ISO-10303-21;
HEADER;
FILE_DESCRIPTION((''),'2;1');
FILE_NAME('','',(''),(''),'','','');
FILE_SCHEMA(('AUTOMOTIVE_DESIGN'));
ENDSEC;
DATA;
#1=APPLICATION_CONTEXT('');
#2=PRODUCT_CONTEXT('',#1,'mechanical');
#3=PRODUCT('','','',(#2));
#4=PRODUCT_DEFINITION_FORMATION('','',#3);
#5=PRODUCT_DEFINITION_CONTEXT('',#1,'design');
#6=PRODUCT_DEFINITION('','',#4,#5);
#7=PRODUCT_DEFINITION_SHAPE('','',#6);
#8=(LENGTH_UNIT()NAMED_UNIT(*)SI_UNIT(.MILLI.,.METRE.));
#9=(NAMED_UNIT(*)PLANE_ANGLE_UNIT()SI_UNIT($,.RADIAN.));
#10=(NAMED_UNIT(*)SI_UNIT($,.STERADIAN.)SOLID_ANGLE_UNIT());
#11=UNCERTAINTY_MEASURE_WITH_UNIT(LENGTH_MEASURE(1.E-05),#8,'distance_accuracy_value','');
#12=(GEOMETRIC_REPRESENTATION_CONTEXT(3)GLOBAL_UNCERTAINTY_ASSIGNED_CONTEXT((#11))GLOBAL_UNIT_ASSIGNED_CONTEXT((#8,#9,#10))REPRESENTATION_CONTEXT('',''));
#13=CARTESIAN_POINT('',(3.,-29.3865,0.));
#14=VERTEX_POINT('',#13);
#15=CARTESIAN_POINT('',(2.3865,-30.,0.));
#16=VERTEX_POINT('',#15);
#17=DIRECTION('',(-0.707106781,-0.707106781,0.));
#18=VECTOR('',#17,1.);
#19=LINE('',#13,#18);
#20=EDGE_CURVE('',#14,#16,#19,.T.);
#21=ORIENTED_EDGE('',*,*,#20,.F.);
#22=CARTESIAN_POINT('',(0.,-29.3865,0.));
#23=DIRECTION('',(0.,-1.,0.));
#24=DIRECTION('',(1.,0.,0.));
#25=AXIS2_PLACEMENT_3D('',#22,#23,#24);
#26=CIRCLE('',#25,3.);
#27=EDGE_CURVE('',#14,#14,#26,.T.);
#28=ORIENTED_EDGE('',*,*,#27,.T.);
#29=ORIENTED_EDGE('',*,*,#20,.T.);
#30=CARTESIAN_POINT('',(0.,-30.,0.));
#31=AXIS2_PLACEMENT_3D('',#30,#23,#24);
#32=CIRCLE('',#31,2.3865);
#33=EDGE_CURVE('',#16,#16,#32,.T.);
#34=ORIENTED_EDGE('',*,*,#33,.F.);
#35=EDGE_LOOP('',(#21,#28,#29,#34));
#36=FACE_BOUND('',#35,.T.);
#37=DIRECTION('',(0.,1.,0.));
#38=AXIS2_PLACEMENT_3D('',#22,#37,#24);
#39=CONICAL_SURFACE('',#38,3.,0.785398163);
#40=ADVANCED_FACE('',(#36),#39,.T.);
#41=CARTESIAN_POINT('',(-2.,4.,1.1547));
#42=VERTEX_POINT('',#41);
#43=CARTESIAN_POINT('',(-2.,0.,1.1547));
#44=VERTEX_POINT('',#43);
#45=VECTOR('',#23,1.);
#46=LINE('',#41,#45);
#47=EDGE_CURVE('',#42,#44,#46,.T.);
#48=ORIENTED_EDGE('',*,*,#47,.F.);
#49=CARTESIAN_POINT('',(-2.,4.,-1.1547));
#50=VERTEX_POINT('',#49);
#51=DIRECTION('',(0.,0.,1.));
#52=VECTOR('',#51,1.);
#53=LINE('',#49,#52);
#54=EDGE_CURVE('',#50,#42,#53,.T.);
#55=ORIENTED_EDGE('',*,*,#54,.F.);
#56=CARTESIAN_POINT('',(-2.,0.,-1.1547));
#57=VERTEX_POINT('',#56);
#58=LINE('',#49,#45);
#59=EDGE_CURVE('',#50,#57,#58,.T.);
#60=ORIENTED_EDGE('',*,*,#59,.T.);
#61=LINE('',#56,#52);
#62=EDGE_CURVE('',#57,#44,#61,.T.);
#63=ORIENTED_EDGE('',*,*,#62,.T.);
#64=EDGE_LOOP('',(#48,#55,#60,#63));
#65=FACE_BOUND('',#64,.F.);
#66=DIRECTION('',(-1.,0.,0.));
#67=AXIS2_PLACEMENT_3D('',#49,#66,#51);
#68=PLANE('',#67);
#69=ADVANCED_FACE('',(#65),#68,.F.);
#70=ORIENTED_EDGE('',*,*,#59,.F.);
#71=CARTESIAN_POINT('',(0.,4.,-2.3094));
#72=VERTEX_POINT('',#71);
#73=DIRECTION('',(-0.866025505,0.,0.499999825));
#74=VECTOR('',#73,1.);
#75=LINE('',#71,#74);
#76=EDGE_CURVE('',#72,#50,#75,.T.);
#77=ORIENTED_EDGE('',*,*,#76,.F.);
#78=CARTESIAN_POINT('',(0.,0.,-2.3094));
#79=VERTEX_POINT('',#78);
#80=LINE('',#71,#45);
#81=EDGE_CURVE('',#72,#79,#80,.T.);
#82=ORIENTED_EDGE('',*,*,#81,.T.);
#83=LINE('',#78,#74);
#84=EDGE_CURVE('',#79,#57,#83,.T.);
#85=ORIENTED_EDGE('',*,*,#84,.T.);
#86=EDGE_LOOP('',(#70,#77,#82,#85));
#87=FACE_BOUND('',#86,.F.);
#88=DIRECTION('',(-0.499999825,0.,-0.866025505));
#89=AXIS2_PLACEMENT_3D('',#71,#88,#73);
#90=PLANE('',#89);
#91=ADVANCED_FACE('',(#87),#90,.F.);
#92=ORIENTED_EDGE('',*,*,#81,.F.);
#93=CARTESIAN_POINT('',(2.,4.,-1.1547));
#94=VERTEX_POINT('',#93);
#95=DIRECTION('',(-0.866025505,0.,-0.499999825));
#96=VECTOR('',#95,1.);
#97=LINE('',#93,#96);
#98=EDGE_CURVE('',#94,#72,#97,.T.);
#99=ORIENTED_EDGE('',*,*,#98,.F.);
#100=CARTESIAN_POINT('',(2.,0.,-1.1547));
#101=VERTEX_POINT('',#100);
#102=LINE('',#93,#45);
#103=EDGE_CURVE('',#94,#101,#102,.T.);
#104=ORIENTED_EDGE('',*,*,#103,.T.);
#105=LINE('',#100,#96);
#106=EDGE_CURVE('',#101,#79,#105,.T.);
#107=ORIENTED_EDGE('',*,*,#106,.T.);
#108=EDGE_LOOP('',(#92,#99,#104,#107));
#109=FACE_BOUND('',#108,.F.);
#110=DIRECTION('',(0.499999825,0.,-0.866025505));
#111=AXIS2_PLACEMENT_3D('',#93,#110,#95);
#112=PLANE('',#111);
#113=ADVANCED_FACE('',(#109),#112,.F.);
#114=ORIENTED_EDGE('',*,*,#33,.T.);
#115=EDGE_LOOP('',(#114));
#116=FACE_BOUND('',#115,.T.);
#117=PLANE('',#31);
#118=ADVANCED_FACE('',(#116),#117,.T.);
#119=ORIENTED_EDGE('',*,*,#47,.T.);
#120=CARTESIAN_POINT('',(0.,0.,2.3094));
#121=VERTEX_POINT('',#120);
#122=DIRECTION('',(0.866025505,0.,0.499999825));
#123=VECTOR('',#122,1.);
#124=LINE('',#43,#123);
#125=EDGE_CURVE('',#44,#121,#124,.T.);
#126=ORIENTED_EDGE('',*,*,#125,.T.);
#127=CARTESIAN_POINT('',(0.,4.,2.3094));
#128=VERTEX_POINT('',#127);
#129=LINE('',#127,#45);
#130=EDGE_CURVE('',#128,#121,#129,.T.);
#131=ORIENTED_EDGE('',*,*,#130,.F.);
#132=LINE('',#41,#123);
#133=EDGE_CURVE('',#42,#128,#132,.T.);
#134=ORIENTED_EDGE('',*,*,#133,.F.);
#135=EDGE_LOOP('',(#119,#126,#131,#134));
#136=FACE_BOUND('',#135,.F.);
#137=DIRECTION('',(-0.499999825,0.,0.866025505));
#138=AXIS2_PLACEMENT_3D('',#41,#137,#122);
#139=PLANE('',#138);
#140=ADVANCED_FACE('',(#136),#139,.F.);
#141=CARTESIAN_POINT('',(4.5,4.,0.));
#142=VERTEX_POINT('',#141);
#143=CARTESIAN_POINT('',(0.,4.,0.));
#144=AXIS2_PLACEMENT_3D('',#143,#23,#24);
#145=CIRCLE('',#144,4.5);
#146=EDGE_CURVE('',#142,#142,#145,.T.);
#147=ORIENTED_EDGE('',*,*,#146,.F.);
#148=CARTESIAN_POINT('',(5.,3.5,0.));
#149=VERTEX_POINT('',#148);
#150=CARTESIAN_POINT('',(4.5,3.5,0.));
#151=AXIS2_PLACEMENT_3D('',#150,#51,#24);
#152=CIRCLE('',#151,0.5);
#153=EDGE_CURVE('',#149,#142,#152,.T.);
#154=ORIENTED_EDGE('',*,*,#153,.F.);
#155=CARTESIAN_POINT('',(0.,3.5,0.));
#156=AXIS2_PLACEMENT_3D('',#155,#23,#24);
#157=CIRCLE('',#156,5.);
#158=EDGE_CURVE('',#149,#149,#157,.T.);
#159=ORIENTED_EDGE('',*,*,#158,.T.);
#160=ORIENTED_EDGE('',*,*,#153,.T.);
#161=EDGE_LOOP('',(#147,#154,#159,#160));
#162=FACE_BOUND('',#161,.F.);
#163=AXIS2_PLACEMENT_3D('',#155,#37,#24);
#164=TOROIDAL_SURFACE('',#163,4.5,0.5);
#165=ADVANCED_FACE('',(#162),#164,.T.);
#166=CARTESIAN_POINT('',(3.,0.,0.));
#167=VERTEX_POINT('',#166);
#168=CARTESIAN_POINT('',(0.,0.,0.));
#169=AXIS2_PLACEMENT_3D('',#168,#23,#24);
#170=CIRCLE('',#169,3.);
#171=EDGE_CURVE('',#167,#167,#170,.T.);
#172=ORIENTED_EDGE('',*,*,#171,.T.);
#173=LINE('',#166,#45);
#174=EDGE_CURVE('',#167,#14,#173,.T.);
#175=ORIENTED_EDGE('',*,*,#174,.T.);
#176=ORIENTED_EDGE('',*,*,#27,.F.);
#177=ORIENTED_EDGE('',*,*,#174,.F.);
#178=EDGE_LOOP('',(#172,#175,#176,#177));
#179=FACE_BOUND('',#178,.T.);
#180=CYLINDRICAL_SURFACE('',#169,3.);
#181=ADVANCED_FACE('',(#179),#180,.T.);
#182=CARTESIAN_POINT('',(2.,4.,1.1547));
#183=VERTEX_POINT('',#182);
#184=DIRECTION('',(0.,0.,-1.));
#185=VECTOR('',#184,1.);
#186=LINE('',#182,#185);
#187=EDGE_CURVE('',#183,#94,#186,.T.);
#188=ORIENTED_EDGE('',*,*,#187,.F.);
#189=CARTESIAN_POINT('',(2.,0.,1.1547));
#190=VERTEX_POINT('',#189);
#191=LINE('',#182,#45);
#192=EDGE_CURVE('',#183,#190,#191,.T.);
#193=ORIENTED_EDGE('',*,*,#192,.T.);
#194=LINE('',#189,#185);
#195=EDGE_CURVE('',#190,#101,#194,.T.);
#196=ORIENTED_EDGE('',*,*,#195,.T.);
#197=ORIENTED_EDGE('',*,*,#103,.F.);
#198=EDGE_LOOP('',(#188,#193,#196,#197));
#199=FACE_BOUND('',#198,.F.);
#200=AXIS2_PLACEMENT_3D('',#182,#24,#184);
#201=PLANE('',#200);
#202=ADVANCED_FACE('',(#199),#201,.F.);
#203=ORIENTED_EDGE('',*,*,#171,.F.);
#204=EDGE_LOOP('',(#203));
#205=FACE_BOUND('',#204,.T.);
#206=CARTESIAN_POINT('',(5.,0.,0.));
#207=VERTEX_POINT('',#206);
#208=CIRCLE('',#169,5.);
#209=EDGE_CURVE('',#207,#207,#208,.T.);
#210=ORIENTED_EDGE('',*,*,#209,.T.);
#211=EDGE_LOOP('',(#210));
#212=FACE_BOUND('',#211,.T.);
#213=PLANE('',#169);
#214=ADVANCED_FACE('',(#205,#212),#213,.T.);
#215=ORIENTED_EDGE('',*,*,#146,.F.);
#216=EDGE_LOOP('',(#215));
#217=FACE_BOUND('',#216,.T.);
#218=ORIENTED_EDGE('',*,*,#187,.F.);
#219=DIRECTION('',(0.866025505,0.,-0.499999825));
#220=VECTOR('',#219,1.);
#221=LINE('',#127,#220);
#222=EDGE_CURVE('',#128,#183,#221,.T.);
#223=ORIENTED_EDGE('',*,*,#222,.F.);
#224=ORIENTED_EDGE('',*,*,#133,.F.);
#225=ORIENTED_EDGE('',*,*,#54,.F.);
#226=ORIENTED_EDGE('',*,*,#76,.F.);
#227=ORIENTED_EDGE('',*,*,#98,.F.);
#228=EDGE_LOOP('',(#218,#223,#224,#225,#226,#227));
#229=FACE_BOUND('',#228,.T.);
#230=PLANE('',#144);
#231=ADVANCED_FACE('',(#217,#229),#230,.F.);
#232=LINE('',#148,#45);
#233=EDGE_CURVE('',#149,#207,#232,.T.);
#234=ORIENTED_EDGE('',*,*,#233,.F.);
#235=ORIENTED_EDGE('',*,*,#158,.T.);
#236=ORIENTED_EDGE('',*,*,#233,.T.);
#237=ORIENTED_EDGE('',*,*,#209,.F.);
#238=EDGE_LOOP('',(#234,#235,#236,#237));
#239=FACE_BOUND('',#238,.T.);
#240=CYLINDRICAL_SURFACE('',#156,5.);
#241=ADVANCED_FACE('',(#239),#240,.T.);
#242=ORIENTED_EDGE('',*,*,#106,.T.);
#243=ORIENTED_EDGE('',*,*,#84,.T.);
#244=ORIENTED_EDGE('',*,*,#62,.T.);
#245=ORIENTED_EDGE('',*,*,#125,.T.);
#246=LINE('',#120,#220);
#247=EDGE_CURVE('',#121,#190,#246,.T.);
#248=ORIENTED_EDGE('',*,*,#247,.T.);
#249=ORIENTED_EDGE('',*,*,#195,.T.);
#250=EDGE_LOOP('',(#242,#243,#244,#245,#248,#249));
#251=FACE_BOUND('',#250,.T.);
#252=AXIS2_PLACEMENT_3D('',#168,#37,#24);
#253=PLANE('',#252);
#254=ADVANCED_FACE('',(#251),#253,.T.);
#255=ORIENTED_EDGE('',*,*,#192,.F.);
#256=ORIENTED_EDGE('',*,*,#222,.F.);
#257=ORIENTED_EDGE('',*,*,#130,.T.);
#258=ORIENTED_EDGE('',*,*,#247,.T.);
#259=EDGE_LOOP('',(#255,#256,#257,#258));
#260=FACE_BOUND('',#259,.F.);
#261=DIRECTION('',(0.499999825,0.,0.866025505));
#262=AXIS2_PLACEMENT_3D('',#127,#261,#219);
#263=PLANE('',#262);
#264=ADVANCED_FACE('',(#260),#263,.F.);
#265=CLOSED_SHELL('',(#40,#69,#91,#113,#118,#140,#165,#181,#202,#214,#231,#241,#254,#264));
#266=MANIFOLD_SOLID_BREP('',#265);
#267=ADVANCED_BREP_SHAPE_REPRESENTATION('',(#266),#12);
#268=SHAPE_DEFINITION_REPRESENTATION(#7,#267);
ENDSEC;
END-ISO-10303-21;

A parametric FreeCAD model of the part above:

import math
import FreeCAD as App
import Part
import Sketcher
Q = App.Units.Quantity

doc = App.newDocument("Part")
body = doc.addObject("PartDesign::Body", "Body")

# Sketch on XY plane
sketch1 = body.newObject("Sketcher::SketchObject", "Sketch")
sketch1.AttachmentSupport = (doc.getObject("XY_Plane"), [""])
sketch1.MapMode = "FlatFace"
sketch1.addGeometry(Part.LineSegment(App.Vector(0, 0, 0), App.Vector(0, -30, 0)), False)
sketch1.addGeometry(Part.LineSegment(App.Vector(0, -30, 0), App.Vector(2.3865, -30, 0)), False)
sketch1.addGeometry(Part.LineSegment(App.Vector(2.3865, -30, 0), App.Vector(3, -29.3865, 0)), False)
sketch1.addGeometry(Part.LineSegment(App.Vector(3, -29.3865, 0), App.Vector(3, 0, 0)), False)
sketch1.addGeometry(Part.LineSegment(App.Vector(3, 0, 0), App.Vector(0, 0, 0)), False)
sketch1.addConstraint(Sketcher.Constraint("Coincident", 0, 2, 1, 1))
sketch1.addConstraint(Sketcher.Constraint("Coincident", 1, 2, 2, 1))
sketch1.addConstraint(Sketcher.Constraint("Coincident", 2, 2, 3, 1))
sketch1.addConstraint(Sketcher.Constraint("Coincident", 3, 2, 4, 1))
sketch1.addConstraint(Sketcher.Constraint("Coincident", 4, 2, 0, 1))
sketch1.addConstraint(Sketcher.Constraint("Vertical", 0))
sketch1.addConstraint(Sketcher.Constraint("Horizontal", 1))
sketch1.addConstraint(Sketcher.Constraint("Vertical", 3))
sketch1.addConstraint(Sketcher.Constraint("Horizontal", 4))
sketch1.addConstraint(Sketcher.Constraint("Coincident", 4, 2, -1, 1))
sketch1.addConstraint(Sketcher.Constraint("DistanceX", 4, 2, 4, 1, Q("3 mm")))
sketch1.addConstraint(Sketcher.Constraint("DistanceY", 0, 2, 0, 1, Q("30 mm")))
sketch1.addConstraint(Sketcher.Constraint("Angle", 2, Q("45 deg")))
sketch1.addConstraint(Sketcher.Constraint("DistanceX", 1, 1, 1, 2, Q("2.3865 mm")))
revolution = body.newObject("PartDesign::Revolution", "Revolution")
revolution.Profile = sketch1
revolution.ReferenceAxis = (sketch1, ["V_Axis"])
revolution.Angle = 360

# Sketch on XY plane
sketch2 = body.newObject("Sketcher::SketchObject", "Sketch001")
sketch2.AttachmentSupport = (doc.getObject("XY_Plane"), [""])
sketch2.MapMode = "FlatFace"
sketch2.addGeometry(Part.LineSegment(App.Vector(0, 4, 0), App.Vector(0, 0, 0)), False)
sketch2.addGeometry(Part.LineSegment(App.Vector(0, 0, 0), App.Vector(5, 0, 0)), False)
sketch2.addGeometry(Part.LineSegment(App.Vector(5, 0, 0), App.Vector(5, 3.5, 0)), False)
sketch2.addGeometry(Part.ArcOfCircle(Part.Circle(App.Vector(4.5, 3.5, 0), App.Vector(0, 0, 1), 0.5), math.radians(0), math.radians(90)), False)
sketch2.addGeometry(Part.LineSegment(App.Vector(4.5, 4, 0), App.Vector(0, 4, 0)), False)
sketch2.addConstraint(Sketcher.Constraint("Coincident", 0, 2, 1, 1))
sketch2.addConstraint(Sketcher.Constraint("Coincident", 1, 2, 2, 1))
sketch2.addConstraint(Sketcher.Constraint("Tangent", 2, 2, 3, 1))
sketch2.addConstraint(Sketcher.Constraint("Tangent", 3, 2, 4, 1))
sketch2.addConstraint(Sketcher.Constraint("Coincident", 4, 2, 0, 1))
sketch2.addConstraint(Sketcher.Constraint("Vertical", 0))
sketch2.addConstraint(Sketcher.Constraint("Horizontal", 1))
sketch2.addConstraint(Sketcher.Constraint("Vertical", 2))
sketch2.addConstraint(Sketcher.Constraint("Horizontal", 4))
sketch2.addConstraint(Sketcher.Constraint("Coincident", 0, 2, -1, 1))
sketch2.addConstraint(Sketcher.Constraint("Radius", 3, Q("0.5 mm")))
sketch2.addConstraint(Sketcher.Constraint("DistanceX", 1, 1, 1, 2, Q("5 mm")))
sketch2.addConstraint(Sketcher.Constraint("DistanceY", 0, 2, 0, 1, Q("4 mm")))
revolution2 = body.newObject("PartDesign::Revolution", "Revolution001")
revolution2.Profile = sketch2
revolution2.ReferenceAxis = (sketch2, ["V_Axis"])
revolution2.Angle = 360

# Sketch on XZ plane
sketch3 = body.newObject("Sketcher::SketchObject", "Sketch002")
sketch3.AttachmentSupport = (doc.getObject("XZ_Plane"), [""])
sketch3.MapMode = "FlatFace"
sketch3.AttachmentOffset = App.Placement(App.Vector(0, 0, -4), App.Rotation())
sketch3.addGeometry(Part.LineSegment(App.Vector(-2, -1.1547, 0), App.Vector(-2, 1.1547, 0)), False)
sketch3.addGeometry(Part.LineSegment(App.Vector(-2, 1.1547, 0), App.Vector(0, 2.3094, 0)), False)
sketch3.addGeometry(Part.LineSegment(App.Vector(0, 2.3094, 0), App.Vector(2, 1.1547, 0)), False)
sketch3.addGeometry(Part.LineSegment(App.Vector(2, 1.1547, 0), App.Vector(2, -1.1547, 0)), False)
sketch3.addGeometry(Part.LineSegment(App.Vector(2, -1.1547, 0), App.Vector(0, -2.3094, 0)), False)
sketch3.addGeometry(Part.LineSegment(App.Vector(0, -2.3094, 0), App.Vector(-2, -1.1547, 0)), False)
sketch3.addConstraint(Sketcher.Constraint("Coincident", 0, 2, 1, 1))
sketch3.addConstraint(Sketcher.Constraint("Coincident", 1, 2, 2, 1))
sketch3.addConstraint(Sketcher.Constraint("Coincident", 2, 2, 3, 1))
sketch3.addConstraint(Sketcher.Constraint("Coincident", 3, 2, 4, 1))
sketch3.addConstraint(Sketcher.Constraint("Coincident", 4, 2, 5, 1))
sketch3.addConstraint(Sketcher.Constraint("Coincident", 5, 2, 0, 1))
sketch3.addConstraint(Sketcher.Constraint("Vertical", 0))
sketch3.addConstraint(Sketcher.Constraint("Vertical", 3))
sketch3.addConstraint(Sketcher.Constraint("Symmetric", 0, 2, 3, 2, -1, 1))
sketch3.addConstraint(Sketcher.Constraint("Symmetric", 1, 2, 4, 2, -1, 1))
sketch3.addConstraint(Sketcher.Constraint("PointOnObject", 1, 2, -2))
sketch3.addConstraint(Sketcher.Constraint("Parallel", 2, 5))
sketch3.addConstraint(Sketcher.Constraint("Horizontal", 0, 2, 2, 2))
sketch3.addConstraint(Sketcher.Constraint("Angle", 1, Q("30 deg")))
sketch3.addConstraint(Sketcher.Constraint("DistanceX", 0, 2, -1, 1, Q("2 mm")))
sketch3.addConstraint(Sketcher.Constraint("DistanceY", 0, 1, 0, 2, Q("2.3094 mm")))
pocket1 = body.newObject("PartDesign::Pocket", "Pocket")
pocket1.Profile = sketch3
pocket1.Length = 4
pocket1.Reversed = True

doc.recompute()
